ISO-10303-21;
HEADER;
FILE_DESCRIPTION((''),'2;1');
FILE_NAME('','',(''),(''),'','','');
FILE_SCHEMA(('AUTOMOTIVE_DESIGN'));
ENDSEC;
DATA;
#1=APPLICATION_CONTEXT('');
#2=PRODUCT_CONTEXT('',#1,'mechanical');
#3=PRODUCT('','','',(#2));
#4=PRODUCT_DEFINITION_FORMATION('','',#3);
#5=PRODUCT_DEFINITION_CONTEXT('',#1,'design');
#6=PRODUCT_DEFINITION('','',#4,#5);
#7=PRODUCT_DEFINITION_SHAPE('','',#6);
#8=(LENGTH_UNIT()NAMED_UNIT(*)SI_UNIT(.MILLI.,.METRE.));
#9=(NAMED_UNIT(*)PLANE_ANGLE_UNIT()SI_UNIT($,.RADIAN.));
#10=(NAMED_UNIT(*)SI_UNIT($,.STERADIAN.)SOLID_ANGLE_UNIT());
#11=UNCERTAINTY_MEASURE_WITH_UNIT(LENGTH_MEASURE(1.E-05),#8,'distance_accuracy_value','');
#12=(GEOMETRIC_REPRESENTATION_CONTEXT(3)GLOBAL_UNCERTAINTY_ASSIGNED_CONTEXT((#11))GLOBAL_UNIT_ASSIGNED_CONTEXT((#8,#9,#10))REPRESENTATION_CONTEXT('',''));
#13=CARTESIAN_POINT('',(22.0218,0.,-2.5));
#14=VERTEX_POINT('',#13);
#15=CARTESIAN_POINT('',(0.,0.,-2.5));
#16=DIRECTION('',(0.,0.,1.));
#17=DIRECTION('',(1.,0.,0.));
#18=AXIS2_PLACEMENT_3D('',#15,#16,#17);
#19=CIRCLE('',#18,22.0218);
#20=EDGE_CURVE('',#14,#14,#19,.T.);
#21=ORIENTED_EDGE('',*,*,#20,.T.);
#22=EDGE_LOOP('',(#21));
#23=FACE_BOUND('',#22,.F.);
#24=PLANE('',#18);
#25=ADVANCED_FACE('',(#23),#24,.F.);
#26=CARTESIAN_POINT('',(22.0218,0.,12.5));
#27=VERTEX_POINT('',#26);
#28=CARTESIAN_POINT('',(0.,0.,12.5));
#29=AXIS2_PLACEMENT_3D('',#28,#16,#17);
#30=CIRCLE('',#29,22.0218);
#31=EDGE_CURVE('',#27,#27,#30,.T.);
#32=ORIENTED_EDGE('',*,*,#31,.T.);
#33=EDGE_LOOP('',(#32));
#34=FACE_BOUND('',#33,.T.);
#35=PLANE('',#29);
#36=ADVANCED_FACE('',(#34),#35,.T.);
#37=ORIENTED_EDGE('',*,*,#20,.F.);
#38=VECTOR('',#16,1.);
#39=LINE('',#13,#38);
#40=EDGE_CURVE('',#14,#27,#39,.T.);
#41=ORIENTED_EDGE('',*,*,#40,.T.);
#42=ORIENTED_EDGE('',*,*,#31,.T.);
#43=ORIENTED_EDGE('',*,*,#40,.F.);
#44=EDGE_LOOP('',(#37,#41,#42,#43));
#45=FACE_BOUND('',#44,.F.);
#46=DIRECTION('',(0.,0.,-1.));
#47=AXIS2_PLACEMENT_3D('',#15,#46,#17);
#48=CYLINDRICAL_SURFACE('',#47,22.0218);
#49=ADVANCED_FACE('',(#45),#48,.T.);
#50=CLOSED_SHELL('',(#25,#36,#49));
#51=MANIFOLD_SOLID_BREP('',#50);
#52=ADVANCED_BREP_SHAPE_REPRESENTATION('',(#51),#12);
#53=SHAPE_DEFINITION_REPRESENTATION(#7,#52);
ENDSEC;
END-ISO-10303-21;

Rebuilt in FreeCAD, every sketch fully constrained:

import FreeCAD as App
import Part
import Sketcher

V = App.Vector
Q = App.Units.Quantity

doc = App.newDocument("Part")
body = doc.addObject("PartDesign::Body", "Body")

# Sketch on XY plane
sketch1 = body.newObject("Sketcher::SketchObject", "Sketch")
sketch1.AttachmentSupport = (doc.getObject("XY_Plane"), [""])
sketch1.MapMode = "FlatFace"
sketch1.AttachmentOffset = App.Placement(V(0, 0, -2.5), App.Rotation())
sketch1.addGeometry(Part.Circle(V(0, 0, 0), V(0, 0, 1), 22), False)
sketch1.addConstraint([
    Sketcher.Constraint("Coincident", 0, 3, -1, 1),
    Sketcher.Constraint("Diameter", 0, Q("44.0436 mm")),
])
pad1 = body.newObject("PartDesign::Pad", "Pad")
pad1.Profile = sketch1
pad1.Length = 15

doc.recompute()
